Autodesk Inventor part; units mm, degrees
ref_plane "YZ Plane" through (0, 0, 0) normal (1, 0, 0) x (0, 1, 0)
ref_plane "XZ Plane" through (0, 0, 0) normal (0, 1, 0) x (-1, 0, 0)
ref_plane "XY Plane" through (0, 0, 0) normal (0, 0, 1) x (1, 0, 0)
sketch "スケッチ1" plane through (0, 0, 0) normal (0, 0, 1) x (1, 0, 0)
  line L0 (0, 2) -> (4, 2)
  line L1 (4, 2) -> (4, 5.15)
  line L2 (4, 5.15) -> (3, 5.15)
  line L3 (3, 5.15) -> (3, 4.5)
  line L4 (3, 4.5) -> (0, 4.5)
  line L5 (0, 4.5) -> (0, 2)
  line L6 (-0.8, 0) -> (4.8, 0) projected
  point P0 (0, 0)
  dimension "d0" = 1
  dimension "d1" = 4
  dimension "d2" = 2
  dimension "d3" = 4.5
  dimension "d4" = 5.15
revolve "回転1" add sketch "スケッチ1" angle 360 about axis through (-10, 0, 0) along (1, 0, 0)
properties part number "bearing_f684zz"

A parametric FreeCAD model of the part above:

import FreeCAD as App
import Part
import Sketcher


def add_polygon(sketch, points):
    """Adds a closed chain of lines whose ends are joined by coincident constraints."""
    first, n = sketch.GeometryCount, len(points)
    for a, b in zip(points, points[1:] + points[:1]):
        sketch.addGeometry(Part.LineSegment(App.Vector(*a, 0), App.Vector(*b, 0)), False)
    for i in range(n):
        sketch.addConstraint(Sketcher.Constraint("Coincident", first + i, 2, first + (i + 1) % n, 1))

doc = App.newDocument("Part")
body = doc.addObject("PartDesign::Body", "Body")

# Sketch on XY plane
sketch1 = body.newObject("Sketcher::SketchObject", "Sketch")
sketch1.AttachmentSupport = (doc.getObject("XY_Plane"), [""])
sketch1.MapMode = "FlatFace"
add_polygon(sketch1, [(0, 4.5), (0, 2), (4, 2), (4, 5.2), (3, 5.2), (3, 4.5)])  # lines 0-5
sketch1.addConstraint([
    Sketcher.Constraint("Vertical", 0),
    Sketcher.Constraint("Horizontal", 1),
    Sketcher.Constraint("Vertical", 2),
    Sketcher.Constraint("Horizontal", 3),
    Sketcher.Constraint("Vertical", 4),
    Sketcher.Constraint("Horizontal", 5),
    Sketcher.Constraint("PointOnObject", 0, 2, -2),
    Sketcher.Constraint("DistanceX", 1, 1, 1, 2, 4.0),
    Sketcher.Constraint("DistanceX", 3, 2, 3, 1, 1.0),
    Sketcher.Constraint("DistanceY", -1, 1, 0, 2, 2.0),
    Sketcher.Constraint("DistanceY", -1, 1, 4, 2, 4.5),
    Sketcher.Constraint("DistanceY", -1, 1, 2, 2, 5.15),
])
revolution = body.newObject("PartDesign::Revolution", "Revolution")
revolution.Profile = sketch1
revolution.ReferenceAxis = (sketch1, ["H_Axis"])
revolution.Angle = 360

doc.recompute()
